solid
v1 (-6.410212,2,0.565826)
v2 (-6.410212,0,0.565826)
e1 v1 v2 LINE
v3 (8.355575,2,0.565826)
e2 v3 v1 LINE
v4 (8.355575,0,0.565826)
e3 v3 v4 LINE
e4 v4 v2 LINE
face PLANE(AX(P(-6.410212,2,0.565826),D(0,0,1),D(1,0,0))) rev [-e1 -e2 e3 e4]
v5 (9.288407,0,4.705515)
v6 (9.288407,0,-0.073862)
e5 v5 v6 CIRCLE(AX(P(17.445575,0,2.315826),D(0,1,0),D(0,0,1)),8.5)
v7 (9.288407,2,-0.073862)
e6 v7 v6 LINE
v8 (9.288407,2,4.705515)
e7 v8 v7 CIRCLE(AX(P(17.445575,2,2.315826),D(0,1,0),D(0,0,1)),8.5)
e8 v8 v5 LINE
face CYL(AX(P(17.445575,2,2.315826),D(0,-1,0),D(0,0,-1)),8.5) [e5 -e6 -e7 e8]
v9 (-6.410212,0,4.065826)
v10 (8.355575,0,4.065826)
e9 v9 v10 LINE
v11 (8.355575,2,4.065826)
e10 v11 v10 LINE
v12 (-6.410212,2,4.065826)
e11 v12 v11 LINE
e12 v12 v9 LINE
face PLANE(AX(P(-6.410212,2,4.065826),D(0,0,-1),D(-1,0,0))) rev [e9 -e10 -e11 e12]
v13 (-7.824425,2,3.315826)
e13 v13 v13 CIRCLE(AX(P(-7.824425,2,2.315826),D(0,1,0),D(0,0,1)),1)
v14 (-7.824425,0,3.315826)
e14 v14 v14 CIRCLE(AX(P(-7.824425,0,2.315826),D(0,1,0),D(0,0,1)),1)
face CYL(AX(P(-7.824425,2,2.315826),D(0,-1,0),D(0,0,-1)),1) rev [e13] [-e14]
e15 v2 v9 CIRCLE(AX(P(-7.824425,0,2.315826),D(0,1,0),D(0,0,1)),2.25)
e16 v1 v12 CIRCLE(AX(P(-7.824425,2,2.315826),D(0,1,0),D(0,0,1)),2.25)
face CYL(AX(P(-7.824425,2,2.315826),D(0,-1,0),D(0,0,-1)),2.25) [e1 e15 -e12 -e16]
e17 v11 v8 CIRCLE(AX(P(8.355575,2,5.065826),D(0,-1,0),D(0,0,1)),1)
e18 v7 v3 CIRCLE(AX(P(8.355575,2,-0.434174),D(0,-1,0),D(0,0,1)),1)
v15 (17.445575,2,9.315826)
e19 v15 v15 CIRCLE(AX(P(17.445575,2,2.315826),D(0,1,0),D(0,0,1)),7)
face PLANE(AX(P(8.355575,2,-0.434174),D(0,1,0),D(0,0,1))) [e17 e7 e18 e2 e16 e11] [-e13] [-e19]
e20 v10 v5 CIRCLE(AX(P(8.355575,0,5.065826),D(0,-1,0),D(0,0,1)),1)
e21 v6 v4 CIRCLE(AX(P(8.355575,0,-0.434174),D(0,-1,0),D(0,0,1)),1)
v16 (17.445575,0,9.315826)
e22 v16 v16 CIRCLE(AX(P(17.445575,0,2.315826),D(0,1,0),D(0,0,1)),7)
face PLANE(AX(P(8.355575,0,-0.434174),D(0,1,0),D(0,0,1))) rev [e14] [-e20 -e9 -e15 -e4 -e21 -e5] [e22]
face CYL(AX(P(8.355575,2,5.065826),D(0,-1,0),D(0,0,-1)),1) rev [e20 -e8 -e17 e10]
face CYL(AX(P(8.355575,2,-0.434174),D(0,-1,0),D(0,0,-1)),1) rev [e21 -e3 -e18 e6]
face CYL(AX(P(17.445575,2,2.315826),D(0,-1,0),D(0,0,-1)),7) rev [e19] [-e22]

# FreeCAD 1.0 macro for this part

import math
import FreeCAD as App
import Part
import Sketcher
Q = App.Units.Quantity

doc = App.newDocument("Part")
body = doc.addObject("PartDesign::Body", "Body")

# Sketch on XZ plane
sketch1 = doc.addObject("Sketcher::SketchObject", "Sketch")
body.addObject(sketch1)
sketch1.AttachmentSupport = (doc.XZ_Plane, [""])
sketch1.MapMode = "FlatFace"
sketch1.addGeometry(Part.LineSegment(App.Vector(8.355575, 0.565826, 0), App.Vector(-6.410212, 0.565826, 0)), False)
sketch1.addGeometry(Part.ArcOfCircle(Part.Circle(App.Vector(-7.824425, 2.315826, 0), App.Vector(0, 0, 1), 2.25), math.radians(51.057559), math.radians(308.942441)), False)
sketch1.addGeometry(Part.LineSegment(App.Vector(-6.410212, 4.065826, 0), App.Vector(8.355575, 4.065826, 0)), False)
sketch1.addGeometry(Part.ArcOfCircle(Part.Circle(App.Vector(8.355575, 5.065826, 0), App.Vector(0, 0, 1), 1), math.radians(-90), math.radians(-21.11932)), False)
sketch1.addGeometry(Part.ArcOfCircle(Part.Circle(App.Vector(17.445575, 2.315826, 0), App.Vector(0, 0, 1), 8.5), math.radians(-163.671754), math.radians(163.671754)), False)
sketch1.addGeometry(Part.ArcOfCircle(Part.Circle(App.Vector(8.355575, -0.434174, 0), App.Vector(0, 0, 1), 1), math.radians(21.11932), math.radians(90)), False)
sketch1.addGeometry(Part.Circle(App.Vector(17.445575, 2.315826, 0), App.Vector(0, 0, 1), 7), False)
sketch1.addGeometry(Part.Circle(App.Vector(-7.824425, 2.315826, 0), App.Vector(0, 0, 1), 1), False)
sketch1.addConstraint(Sketcher.Constraint("Coincident", 0, 2, 1, 2))
sketch1.addConstraint(Sketcher.Constraint("Coincident", 1, 1, 2, 1))
sketch1.addConstraint(Sketcher.Constraint("Tangent", 2, 2, 3, 1))
sketch1.addConstraint(Sketcher.Constraint("Coincident", 3, 2, 4, 2))
sketch1.addConstraint(Sketcher.Constraint("Coincident", 4, 1, 5, 1))
sketch1.addConstraint(Sketcher.Constraint("Tangent", 5, 2, 0, 1))
sketch1.addConstraint(Sketcher.Constraint("Horizontal", 0))
sketch1.addConstraint(Sketcher.Constraint("Horizontal", 2))
sketch1.addConstraint(Sketcher.Constraint("Coincident", 6, 3, 4, 3))
sketch1.addConstraint(Sketcher.Constraint("Coincident", 7, 3, 1, 3))
sketch1.addConstraint(Sketcher.Constraint("Equal", 3, 5))
sketch1.addConstraint(Sketcher.Constraint("Equal", 5, 7))
sketch1.addConstraint(Sketcher.Constraint("Horizontal", 1, 3, 4, 3))
sketch1.addConstraint(Sketcher.Constraint("Vertical", 3, 3, 5, 3))
sketch1.addConstraint(Sketcher.Constraint("Vertical", 0, 2, 1, 1))
sketch1.addConstraint(Sketcher.Constraint("Diameter", 6, Q("14 mm")))
sketch1.addConstraint(Sketcher.Constraint("Diameter", 7, Q("2 mm")))
sketch1.addConstraint(Sketcher.Constraint("Radius", 4, Q("8.5 mm")))
sketch1.addConstraint(Sketcher.Constraint("Radius", 1, Q("2.25 mm")))
sketch1.addConstraint(Sketcher.Constraint("DistanceY", 5, 3, 3, 3, Q("5.5 mm")))
sketch1.addConstraint(Sketcher.Constraint("DistanceX", 1, 3, 3, 3, Q("16.18 mm")))
sketch1.addConstraint(Sketcher.Constraint("DistanceX", 3, 3, 4, 3, Q("9.09 mm")))
sketch1.addConstraint(Sketcher.Constraint("DistanceX", 0, 2, -1, 1, Q("6.410212 mm")))
sketch1.addConstraint(Sketcher.Constraint("DistanceY", -1, 1, 1, 3, Q("2.315826 mm")))
pad1 = doc.addObject("PartDesign::Pad", "Pad")
body.addObject(pad1)
pad1.Profile = sketch1
pad1.Length = 2
pad1.Reversed = True

doc.recompute()
